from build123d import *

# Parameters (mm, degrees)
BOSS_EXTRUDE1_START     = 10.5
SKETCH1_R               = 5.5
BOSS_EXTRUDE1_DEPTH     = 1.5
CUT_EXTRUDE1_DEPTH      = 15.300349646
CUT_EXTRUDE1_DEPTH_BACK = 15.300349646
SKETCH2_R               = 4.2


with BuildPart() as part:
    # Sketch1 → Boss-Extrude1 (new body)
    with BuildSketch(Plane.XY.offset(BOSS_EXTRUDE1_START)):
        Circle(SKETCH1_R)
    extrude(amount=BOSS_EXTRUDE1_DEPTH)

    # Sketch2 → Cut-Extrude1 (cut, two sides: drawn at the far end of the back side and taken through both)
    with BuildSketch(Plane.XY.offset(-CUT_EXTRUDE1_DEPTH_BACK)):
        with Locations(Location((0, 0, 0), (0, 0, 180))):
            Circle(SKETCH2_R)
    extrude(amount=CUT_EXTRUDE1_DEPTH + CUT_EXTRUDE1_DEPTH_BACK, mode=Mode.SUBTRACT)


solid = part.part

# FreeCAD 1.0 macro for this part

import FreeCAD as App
import Part
import Sketcher
from FreeCAD import Vector
Q = App.Units.Quantity

doc = App.newDocument("Part")
body = doc.addObject("PartDesign::Body", "Body")

sketch1 = doc.addObject("Sketcher::SketchObject", "Sketch")
body.addObject(sketch1)
sketch1.AttachmentSupport = (doc.XY_Plane, [""])
sketch1.MapMode = "FlatFace"
sketch1.AttachmentOffset = App.Placement(Vector(0, 0, 10.5), App.Rotation())
sketch1.addGeometry(Part.Circle(Vector(0, 0, 0), Vector(0, 0, 1), 5.5), False)
sketch1.addConstraint([
    Sketcher.Constraint("Coincident", 0, 3, -1, 1),
    Sketcher.Constraint("Diameter", 0, Q("11 mm")),
])
pad1 = doc.addObject("PartDesign::Pad", "Pad")
body.addObject(pad1)
pad1.Profile = sketch1
pad1.Length = 1.5

sketch2 = doc.addObject("Sketcher::SketchObject", "Sketch001")
body.addObject(sketch2)
sketch2.AttachmentSupport = (doc.XY_Plane, [""])
sketch2.MapMode = "FlatFace"
sketch2.addGeometry(Part.Circle(Vector(0, 0, 0), Vector(0, 0, 1), 4.2), False)
sketch2.addConstraint([
    Sketcher.Constraint("Coincident", 0, 3, -1, 1),
    Sketcher.Constraint("Diameter", 0, Q("8.4 mm")),
])
pocket1 = doc.addObject("PartDesign::Pocket", "Pocket")
body.addObject(pocket1)
pocket1.Profile = sketch2
pocket1.Type = "ThroughAll"
pocket1.Midplane = True

doc.recompute()
